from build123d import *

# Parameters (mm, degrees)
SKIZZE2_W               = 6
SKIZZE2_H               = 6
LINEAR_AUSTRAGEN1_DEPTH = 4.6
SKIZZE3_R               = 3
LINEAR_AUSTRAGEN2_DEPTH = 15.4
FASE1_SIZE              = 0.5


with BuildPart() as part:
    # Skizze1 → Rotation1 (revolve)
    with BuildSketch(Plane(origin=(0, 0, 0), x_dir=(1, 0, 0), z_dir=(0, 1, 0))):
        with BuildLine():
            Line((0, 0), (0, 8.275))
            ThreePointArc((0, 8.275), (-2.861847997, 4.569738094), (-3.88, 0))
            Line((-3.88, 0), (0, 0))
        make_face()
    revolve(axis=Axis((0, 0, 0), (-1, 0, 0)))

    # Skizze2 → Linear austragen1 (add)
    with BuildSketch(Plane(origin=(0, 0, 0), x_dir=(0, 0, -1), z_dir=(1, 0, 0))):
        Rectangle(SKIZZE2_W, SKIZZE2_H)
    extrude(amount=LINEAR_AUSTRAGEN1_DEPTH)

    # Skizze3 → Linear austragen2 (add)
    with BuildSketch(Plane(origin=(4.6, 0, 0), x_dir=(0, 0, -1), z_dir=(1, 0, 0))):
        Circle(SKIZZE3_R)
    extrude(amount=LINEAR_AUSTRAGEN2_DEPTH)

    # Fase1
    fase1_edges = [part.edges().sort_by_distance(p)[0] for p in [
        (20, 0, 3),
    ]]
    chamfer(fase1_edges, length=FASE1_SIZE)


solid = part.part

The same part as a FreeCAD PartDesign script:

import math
import FreeCAD as App
import Part
import Sketcher
from FreeCAD import Vector


def edges_at(feature, points):
    """Names of the edges that pass closest to the given points."""
    edges = feature.Shape.Edges
    near = lambda p: min(range(len(edges)), key=lambda i: edges[i].distToShape(Part.Vertex(*p))[0])
    return sorted({f"Edge{near(p) + 1}" for p in points})

doc = App.newDocument("Part")
params = doc.addObject("Spreadsheet::Sheet", "Params")
for row, (alias, value) in enumerate([
    ("sketch1_width", "3.88 mm"),
    ("revolution_angle", "360 deg"),
    ("sketch2_width", "6 mm"),
    ("pad1_length", "4.6 mm"),
    ("sketch3_diameter", "6 mm"),
    ("pad2_length", "15.4 mm"),
    ("chamfer_size", "0.5 mm"),
], start=1):
    params.set(f"A{row}", alias)
    params.set(f"B{row}", "=" + value)
    params.setAlias(f"B{row}", alias)

body = doc.addObject("PartDesign::Body", "Body")

# Sketch on XZ plane
sketch1 = body.newObject("Sketcher::SketchObject", "Sketch")
sketch1.AttachmentSupport = (doc.getObject("XZ_Plane"), [""])
sketch1.MapMode = "FlatFace"
sketch1.addGeometry([
    Part.LineSegment(Vector(0, 0, 0), Vector(0, -8.3, 0)),
    Part.ArcOfCircle(Part.Circle(Vector(6.9, 0, 0), Vector(0, 0, 1), 10.8), math.radians(-180), math.radians(-130)),
    Part.LineSegment(Vector(-3.9, 0, 0), Vector(0, 0, 0)),
], False)
sketch1.addConstraint([
    Sketcher.Constraint("Coincident", 0, 2, 1, 2),
    Sketcher.Constraint("Coincident", 1, 1, 2, 1),
    Sketcher.Constraint("Coincident", 2, 2, 0, 1),
    Sketcher.Constraint("Vertical", 0),
    Sketcher.Constraint("Horizontal", 2),
    Sketcher.Constraint("Coincident", 2, 2, -1, 1),
    Sketcher.Constraint("PointOnObject", 1, 3, -1),
    Sketcher.Constraint("DistanceX", 2, 1, 2, 2, 3.88),
    Sketcher.Constraint("DistanceY", 0, 2, 0, 1, 8.275),
])
sketch1.setExpression("Constraints[7]", "Params.sketch1_width")
revolution = body.newObject("PartDesign::Revolution", "Revolution")
revolution.Profile = sketch1
revolution.ReferenceAxis = (sketch1, ["H_Axis"])
revolution.setExpression("Angle", "Params.revolution_angle")

# Sketch on YZ plane
sketch2 = body.newObject("Sketcher::SketchObject", "Sketch001")
sketch2.AttachmentSupport = (doc.getObject("YZ_Plane"), [""])
sketch2.MapMode = "FlatFace"
sketch2.addGeometry([
    Part.LineSegment(Vector(3, 3, 0), Vector(-3, 3, 0)),
    Part.LineSegment(Vector(-3, 3, 0), Vector(-3, -3, 0)),
    Part.LineSegment(Vector(-3, -3, 0), Vector(3, -3, 0)),
    Part.LineSegment(Vector(3, -3, 0), Vector(3, 3, 0)),
], False)
sketch2.addConstraint([
    Sketcher.Constraint("Coincident", 0, 2, 1, 1),
    Sketcher.Constraint("Coincident", 1, 2, 2, 1),
    Sketcher.Constraint("Coincident", 2, 2, 3, 1),
    Sketcher.Constraint("Coincident", 3, 2, 0, 1),
    Sketcher.Constraint("Horizontal", 0),
    Sketcher.Constraint("Vertical", 1),
    Sketcher.Constraint("Horizontal", 2),
    Sketcher.Constraint("Vertical", 3),
    Sketcher.Constraint("Symmetric", 0, 2, 2, 2, -1, 1),
    Sketcher.Constraint("Equal", 2, 1),
    Sketcher.Constraint("DistanceX", 0, 2, 0, 1, 6.0),
])
sketch2.setExpression("Constraints[10]", "Params.sketch2_width")
pad1 = body.newObject("PartDesign::Pad", "Pad")
pad1.Profile = sketch2
pad1.setExpression("Length", "Params.pad1_length")

# Sketch on YZ plane
sketch3 = body.newObject("Sketcher::SketchObject", "Sketch002")
sketch3.AttachmentSupport = (doc.getObject("YZ_Plane"), [""])
sketch3.MapMode = "FlatFace"
sketch3.AttachmentOffset = App.Placement(Vector(0, 0, 4.6), App.Rotation())
sketch3.addGeometry(Part.Circle(Vector(0, 0, 0), Vector(0, 0, 1), 3), False)
sketch3.addConstraint([
    Sketcher.Constraint("Coincident", 0, 3, -1, 1),
    Sketcher.Constraint("Diameter", 0, 6.0),
])
sketch3.setExpression("Constraints[1]", "Params.sketch3_diameter")
pad2 = body.newObject("PartDesign::Pad", "Pad001")
pad2.Profile = sketch3
pad2.setExpression("Length", "Params.pad2_length")
doc.recompute()

chamfer = body.newObject("PartDesign::Chamfer", "Chamfer")
chamfer.Base = (pad2, edges_at(pad2, [(20, 0, 3)]))
chamfer.setExpression("Size", "Params.chamfer_size")

doc.recompute()
